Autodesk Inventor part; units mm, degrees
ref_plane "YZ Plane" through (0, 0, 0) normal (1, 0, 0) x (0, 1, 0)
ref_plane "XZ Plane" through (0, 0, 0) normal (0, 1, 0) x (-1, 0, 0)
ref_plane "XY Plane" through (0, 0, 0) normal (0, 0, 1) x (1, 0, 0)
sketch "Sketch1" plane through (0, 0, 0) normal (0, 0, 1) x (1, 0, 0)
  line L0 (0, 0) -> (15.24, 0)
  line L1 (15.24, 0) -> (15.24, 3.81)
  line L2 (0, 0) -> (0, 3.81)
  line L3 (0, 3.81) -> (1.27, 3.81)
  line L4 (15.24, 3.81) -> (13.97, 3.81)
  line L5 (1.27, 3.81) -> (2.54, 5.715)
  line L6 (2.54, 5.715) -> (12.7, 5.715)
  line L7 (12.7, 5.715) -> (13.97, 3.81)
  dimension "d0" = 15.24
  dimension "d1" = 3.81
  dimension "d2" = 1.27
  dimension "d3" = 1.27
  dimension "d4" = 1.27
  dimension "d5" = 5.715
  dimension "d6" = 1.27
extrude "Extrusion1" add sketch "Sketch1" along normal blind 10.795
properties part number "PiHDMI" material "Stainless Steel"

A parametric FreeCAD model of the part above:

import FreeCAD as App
import Part
import Sketcher
from FreeCAD import Vector
Q = App.Units.Quantity


def add_polygon(sketch, points):
    """Adds a closed chain of lines whose ends are joined by coincident constraints."""
    first, n = sketch.GeometryCount, len(points)
    for a, b in zip(points, points[1:] + points[:1]):
        sketch.addGeometry(Part.LineSegment(App.Vector(*a, 0), App.Vector(*b, 0)), False)
    for i in range(n):
        sketch.addConstraint(Sketcher.Constraint("Coincident", first + i, 2, first + (i + 1) % n, 1))

doc = App.newDocument("Part")
body = doc.addObject("PartDesign::Body", "Body")

# Sketch on XY plane
sketch1 = body.newObject("Sketcher::SketchObject", "Sketch")
sketch1.AttachmentSupport = (doc.getObject("XY_Plane"), [""])
sketch1.MapMode = "FlatFace"
add_polygon(sketch1, [(0, 3.8), (0, 0), (15.2, 0), (15.2, 3.8), (14, 3.8), (12.7, 5.7), (2.5, 5.7), (1.3, 3.8)])  # lines 0-7
sketch1.addConstraint([
    Sketcher.Constraint("Vertical", 0),
    Sketcher.Constraint("Horizontal", 1),
    Sketcher.Constraint("Vertical", 2),
    Sketcher.Constraint("Horizontal", 3),
    Sketcher.Constraint("Horizontal", 5),
    Sketcher.Constraint("Horizontal", 7),
    Sketcher.Constraint("Coincident", 0, 2, -1, 1),
    Sketcher.Constraint("Horizontal", 3, 2, 6, 2),
    Sketcher.Constraint("Equal", 3, 7),
    Sketcher.Constraint("Equal", 4, 6),
    Sketcher.Constraint("DistanceX", 1, 1, 1, 2, Q("0.6 in")),
    Sketcher.Constraint("DistanceX", 3, 2, 3, 1, Q("0.05 in")),
    Sketcher.Constraint("DistanceY", 0, 2, 0, 1, Q("0.15 in")),
    Sketcher.Constraint("DistanceX", 4, 2, 3, 2, Q("0.05 in")),
    Sketcher.Constraint("DistanceY", -1, 1, 4, 2, Q("0.225 in")),
])
pad1 = body.newObject("PartDesign::Pad", "Pad")
pad1.Profile = sketch1
pad1.Length = Q("0.425 in")

doc.recompute()
